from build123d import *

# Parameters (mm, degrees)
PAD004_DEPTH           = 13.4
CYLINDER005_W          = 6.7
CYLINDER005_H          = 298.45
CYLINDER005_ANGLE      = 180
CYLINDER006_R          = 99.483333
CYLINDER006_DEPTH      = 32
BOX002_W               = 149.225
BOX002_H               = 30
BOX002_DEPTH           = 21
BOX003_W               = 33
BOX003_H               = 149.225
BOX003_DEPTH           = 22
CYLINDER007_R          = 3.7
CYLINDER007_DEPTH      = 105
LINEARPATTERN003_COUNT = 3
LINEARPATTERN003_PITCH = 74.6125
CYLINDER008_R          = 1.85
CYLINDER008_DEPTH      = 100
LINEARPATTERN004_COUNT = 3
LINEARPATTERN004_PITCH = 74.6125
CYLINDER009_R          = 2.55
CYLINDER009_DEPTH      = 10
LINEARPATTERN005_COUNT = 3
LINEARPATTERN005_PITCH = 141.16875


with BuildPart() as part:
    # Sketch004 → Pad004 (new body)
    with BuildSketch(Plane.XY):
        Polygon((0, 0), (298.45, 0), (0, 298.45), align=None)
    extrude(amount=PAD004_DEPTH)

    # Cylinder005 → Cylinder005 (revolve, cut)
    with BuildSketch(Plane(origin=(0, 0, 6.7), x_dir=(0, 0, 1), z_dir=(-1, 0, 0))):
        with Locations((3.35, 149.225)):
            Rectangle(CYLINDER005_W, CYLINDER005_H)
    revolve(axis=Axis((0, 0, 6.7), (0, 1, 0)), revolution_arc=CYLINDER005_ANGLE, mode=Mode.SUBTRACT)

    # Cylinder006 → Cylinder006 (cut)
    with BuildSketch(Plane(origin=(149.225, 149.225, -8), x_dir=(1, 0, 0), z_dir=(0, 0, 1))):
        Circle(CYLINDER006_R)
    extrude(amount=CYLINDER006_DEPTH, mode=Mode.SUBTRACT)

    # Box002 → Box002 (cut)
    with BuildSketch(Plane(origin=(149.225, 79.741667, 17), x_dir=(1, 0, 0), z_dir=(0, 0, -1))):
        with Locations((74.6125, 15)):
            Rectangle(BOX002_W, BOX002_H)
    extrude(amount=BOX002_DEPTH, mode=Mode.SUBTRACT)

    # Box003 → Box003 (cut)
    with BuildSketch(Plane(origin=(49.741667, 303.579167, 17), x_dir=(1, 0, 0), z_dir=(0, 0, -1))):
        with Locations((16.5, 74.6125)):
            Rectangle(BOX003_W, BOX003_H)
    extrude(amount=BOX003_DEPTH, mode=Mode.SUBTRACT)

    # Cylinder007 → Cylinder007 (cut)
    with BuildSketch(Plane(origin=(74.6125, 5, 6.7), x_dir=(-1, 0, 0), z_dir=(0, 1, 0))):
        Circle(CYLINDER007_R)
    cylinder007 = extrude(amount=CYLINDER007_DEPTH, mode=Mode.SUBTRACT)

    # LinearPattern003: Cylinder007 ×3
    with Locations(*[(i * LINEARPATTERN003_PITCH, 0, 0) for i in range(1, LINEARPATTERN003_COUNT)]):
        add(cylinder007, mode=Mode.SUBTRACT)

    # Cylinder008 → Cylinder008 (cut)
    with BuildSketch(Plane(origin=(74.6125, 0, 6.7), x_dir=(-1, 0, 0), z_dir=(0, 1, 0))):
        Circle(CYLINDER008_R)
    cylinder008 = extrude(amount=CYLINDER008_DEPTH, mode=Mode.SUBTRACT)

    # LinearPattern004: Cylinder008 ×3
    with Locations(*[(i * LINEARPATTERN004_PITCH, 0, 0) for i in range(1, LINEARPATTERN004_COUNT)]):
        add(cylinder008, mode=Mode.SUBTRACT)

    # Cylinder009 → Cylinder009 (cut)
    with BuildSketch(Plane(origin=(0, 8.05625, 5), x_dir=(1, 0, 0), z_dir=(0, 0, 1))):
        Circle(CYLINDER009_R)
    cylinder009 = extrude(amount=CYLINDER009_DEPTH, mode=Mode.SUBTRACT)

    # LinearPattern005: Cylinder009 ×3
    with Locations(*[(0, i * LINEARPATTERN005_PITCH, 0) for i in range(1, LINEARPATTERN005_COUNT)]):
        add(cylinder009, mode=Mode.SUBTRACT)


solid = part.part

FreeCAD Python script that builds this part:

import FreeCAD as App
import Part
import Sketcher

doc = App.newDocument("Part")
body = doc.addObject("PartDesign::Body", "Body")

sketch1 = body.newObject("Sketcher::SketchObject", "Sketch")
sketch1.AttachmentSupport = (doc.getObject("XY_Plane"), [""])
sketch1.MapMode = "FlatFace"
sketch1.addGeometry(Part.LineSegment(App.Vector(0, 0, 0), App.Vector(298.45, 0, 0)), False)
sketch1.addGeometry(Part.LineSegment(App.Vector(298.45, 0, 0), App.Vector(0, 298.45, 0)), False)
sketch1.addGeometry(Part.LineSegment(App.Vector(0, 298.45, 0), App.Vector(0, 0, 0)), False)
sketch1.addConstraint(Sketcher.Constraint("Coincident", 0, 2, 1, 1))
sketch1.addConstraint(Sketcher.Constraint("Coincident", 1, 2, 2, 1))
sketch1.addConstraint(Sketcher.Constraint("Coincident", 2, 2, 0, 1))
sketch1.addConstraint(Sketcher.Constraint("Horizontal", 0))
sketch1.addConstraint(Sketcher.Constraint("Vertical", 2))
sketch1.addConstraint(Sketcher.Constraint("Coincident", 2, 2, -1, 1))
sketch1.addConstraint(Sketcher.Constraint("Equal", 0, 2))
sketch1.addConstraint(Sketcher.Constraint("DistanceX", 0, 1, 0, 2, 298.45))
pad1 = body.newObject("PartDesign::Pad", "Pad")
pad1.Profile = sketch1
pad1.Length = 13.4

sketch2 = body.newObject("Sketcher::SketchObject", "Sketch001")
sketch2.AttachmentSupport = (doc.getObject("YZ_Plane"), [""])
sketch2.MapMode = "FlatFace"
sketch2.addGeometry(Part.LineSegment(App.Vector(298.45, 6.7, 0), App.Vector(0, 6.7, 0)), False)
sketch2.addGeometry(Part.LineSegment(App.Vector(0, 6.7, 0), App.Vector(0, 13.4, 0)), False)
sketch2.addGeometry(Part.LineSegment(App.Vector(0, 13.4, 0), App.Vector(298.45, 13.4, 0)), False)
sketch2.addGeometry(Part.LineSegment(App.Vector(298.45, 13.4, 0), App.Vector(298.45, 6.7, 0)), False)
sketch2.addGeometry(Part.LineSegment(App.Vector(0, 6.7, 0), App.Vector(298.45, 6.7, 0)), True)
sketch2.addConstraint(Sketcher.Constraint("Coincident", 0, 2, 1, 1))
sketch2.addConstraint(Sketcher.Constraint("Coincident", 1, 2, 2, 1))
sketch2.addConstraint(Sketcher.Constraint("Coincident", 2, 2, 3, 1))
sketch2.addConstraint(Sketcher.Constraint("Coincident", 3, 2, 0, 1))
sketch2.addConstraint(Sketcher.Constraint("Horizontal", 0))
sketch2.addConstraint(Sketcher.Constraint("Vertical", 1))
sketch2.addConstraint(Sketcher.Constraint("Horizontal", 2))
sketch2.addConstraint(Sketcher.Constraint("Vertical", 3))
sketch2.addConstraint(Sketcher.Constraint("Horizontal", 4))
sketch2.addConstraint(Sketcher.Constraint("Coincident", 4, 1, 0, 2))
sketch2.addConstraint(Sketcher.Constraint("PointOnObject", 0, 2, -2))
sketch2.addConstraint(Sketcher.Constraint("Vertical", 2, 2, 4, 2))
sketch2.addConstraint(Sketcher.Constraint("DistanceY", 1, 1, 1, 2, 6.7))
sketch2.addConstraint(Sketcher.Constraint("DistanceX", 0, 2, 0, 1, 298.45))
sketch2.addConstraint(Sketcher.Constraint("DistanceY", -1, 1, 0, 2, 6.7))
groove = body.newObject("PartDesign::Groove", "Groove")
groove.Profile = sketch2
groove.ReferenceAxis = (sketch2, ["Axis0"])
groove.Angle = 180

sketch3 = body.newObject("Sketcher::SketchObject", "Sketch002")
sketch3.AttachmentSupport = (doc.getObject("XY_Plane"), [""])
sketch3.MapMode = "FlatFace"
sketch3.AttachmentOffset = App.Placement(App.Vector(0, 0, -8), App.Rotation())
sketch3.addGeometry(Part.Circle(App.Vector(149.225, 149.225, 0), App.Vector(0, 0, 1), 99.483333), False)
sketch3.addConstraint(Sketcher.Constraint("Diameter", 0, 198.966666))
sketch3.addConstraint(Sketcher.Constraint("DistanceX", -1, 1, 0, 3, 149.225))
sketch3.addConstraint(Sketcher.Constraint("DistanceY", -1, 1, 0, 3, 149.225))
pocket1 = body.newObject("PartDesign::Pocket", "Pocket")
pocket1.Profile = sketch3
pocket1.Length = 32
pocket1.Reversed = True

sketch4 = body.newObject("Sketcher::SketchObject", "Sketch003")
sketch4.AttachmentSupport = (doc.getObject("XY_Plane"), [""])
sketch4.MapMode = "FlatFace"
sketch4.AttachmentOffset = App.Placement(App.Vector(0, 0, 17), App.Rotation())
sketch4.addGeometry(Part.LineSegment(App.Vector(149.225, 49.741667, 0), App.Vector(149.225, 79.741667, 0)), False)
sketch4.addGeometry(Part.LineSegment(App.Vector(149.225, 79.741667, 0), App.Vector(298.45, 79.741667, 0)), False)
sketch4.addGeometry(Part.LineSegment(App.Vector(298.45, 79.741667, 0), App.Vector(298.45, 49.741667, 0)), False)
sketch4.addGeometry(Part.LineSegment(App.Vector(298.45, 49.741667, 0), App.Vector(149.225, 49.741667, 0)), False)
sketch4.addConstraint(Sketcher.Constraint("Coincident", 0, 2, 1, 1))
sketch4.addConstraint(Sketcher.Constraint("Coincident", 1, 2, 2, 1))
sketch4.addConstraint(Sketcher.Constraint("Coincident", 2, 2, 3, 1))
sketch4.addConstraint(Sketcher.Constraint("Coincident", 3, 2, 0, 1))
sketch4.addConstraint(Sketcher.Constraint("Vertical", 0))
sketch4.addConstraint(Sketcher.Constraint("Horizontal", 1))
sketch4.addConstraint(Sketcher.Constraint("Vertical", 2))
sketch4.addConstraint(Sketcher.Constraint("Horizontal", 3))
sketch4.addConstraint(Sketcher.Constraint("DistanceY", 0, 1, 0, 2, 30.0))
sketch4.addConstraint(Sketcher.Constraint("DistanceX", 1, 1, 1, 2, 149.225))
sketch4.addConstraint(Sketcher.Constraint("DistanceX", -1, 1, 1, 2, 298.45))
sketch4.addConstraint(Sketcher.Constraint("DistanceY", -1, 1, 0, 2, 79.741667))
pocket2 = body.newObject("PartDesign::Pocket", "Pocket001")
pocket2.Profile = sketch4
pocket2.Length = 21

sketch5 = body.newObject("Sketcher::SketchObject", "Sketch004")
sketch5.AttachmentSupport = (doc.getObject("XY_Plane"), [""])
sketch5.MapMode = "FlatFace"
sketch5.AttachmentOffset = App.Placement(App.Vector(0, 0, 17), App.Rotation())
sketch5.addGeometry(Part.LineSegment(App.Vector(49.741667, 154.354167, 0), App.Vector(49.741667, 303.579167, 0)), False)
sketch5.addGeometry(Part.LineSegment(App.Vector(49.741667, 303.579167, 0), App.Vector(82.741667, 303.579167, 0)), False)
sketch5.addGeometry(Part.LineSegment(App.Vector(82.741667, 303.579167, 0), App.Vector(82.741667, 154.354167, 0)), False)
sketch5.addGeometry(Part.LineSegment(App.Vector(82.741667, 154.354167, 0), App.Vector(49.741667, 154.354167, 0)), False)
sketch5.addConstraint(Sketcher.Constraint("Coincident", 0, 2, 1, 1))
sketch5.addConstraint(Sketcher.Constraint("Coincident", 1, 2, 2, 1))
sketch5.addConstraint(Sketcher.Constraint("Coincident", 2, 2, 3, 1))
sketch5.addConstraint(Sketcher.Constraint("Coincident", 3, 2, 0, 1))
sketch5.addConstraint(Sketcher.Constraint("Vertical", 0))
sketch5.addConstraint(Sketcher.Constraint("Horizontal", 1))
sketch5.addConstraint(Sketcher.Constraint("Vertical", 2))
sketch5.addConstraint(Sketcher.Constraint("Horizontal", 3))
sketch5.addConstraint(Sketcher.Constraint("DistanceX", 1, 1, 1, 2, 33.0))
sketch5.addConstraint(Sketcher.Constraint("DistanceY", 0, 1, 0, 2, 149.225))
sketch5.addConstraint(Sketcher.Constraint("DistanceX", -1, 1, 0, 2, 49.741667))
sketch5.addConstraint(Sketcher.Constraint("DistanceY", -1, 1, 0, 2, 303.579167))
pocket3 = body.newObject("PartDesign::Pocket", "Pocket002")
pocket3.Profile = sketch5
pocket3.Length = 22

sketch6 = body.newObject("Sketcher::SketchObject", "Sketch005")
sketch6.AttachmentSupport = (doc.getObject("XZ_Plane"), [""])
sketch6.MapMode = "FlatFace"
sketch6.AttachmentOffset = App.Placement(App.Vector(0, 0, -5), App.Rotation())
sketch6.addGeometry(Part.Circle(App.Vector(74.6125, 6.7, 0), App.Vector(0, 0, 1), 3.7), False)
sketch6.addConstraint(Sketcher.Constraint("Diameter", 0, 7.4))
sketch6.addConstraint(Sketcher.Constraint("DistanceY", -1, 1, 0, 3, 6.7))
sketch6.addConstraint(Sketcher.Constraint("DistanceX", -1, 1, 0, 3, 74.6125))
pocket4 = body.newObject("PartDesign::Pocket", "Pocket003")
pocket4.Profile = sketch6
pocket4.Length = 105
doc.recompute()

linearpattern = body.newObject("PartDesign::LinearPattern", "LinearPattern")
linearpattern.Originals = [pocket4]
linearpattern.Direction = (doc.getObject("X_Axis"), [""])
linearpattern.Mode = "offset"
linearpattern.Offset = 74.6125
linearpattern.Occurrences = 3
body.Tip = linearpattern

sketch7 = body.newObject("Sketcher::SketchObject", "Sketch006")
sketch7.AttachmentSupport = (doc.getObject("XZ_Plane"), [""])
sketch7.MapMode = "FlatFace"
sketch7.addGeometry(Part.Circle(App.Vector(74.6125, 6.7, 0), App.Vector(0, 0, 1), 1.85), False)
sketch7.addConstraint(Sketcher.Constraint("Diameter", 0, 3.7))
sketch7.addConstraint(Sketcher.Constraint("DistanceY", -1, 1, 0, 3, 6.7))
sketch7.addConstraint(Sketcher.Constraint("DistanceX", -1, 1, 0, 3, 74.6125))
pocket5 = body.newObject("PartDesign::Pocket", "Pocket004")
pocket5.Profile = sketch7
pocket5.Length = 100
doc.recompute()

linearpattern2 = body.newObject("PartDesign::LinearPattern", "LinearPattern001")
linearpattern2.Originals = [pocket5]
linearpattern2.Direction = (doc.getObject("X_Axis"), [""])
linearpattern2.Mode = "offset"
linearpattern2.Offset = 74.6125
linearpattern2.Occurrences = 3
body.Tip = linearpattern2

sketch8 = body.newObject("Sketcher::SketchObject", "Sketch007")
sketch8.AttachmentSupport = (doc.getObject("XY_Plane"), [""])
sketch8.MapMode = "FlatFace"
sketch8.AttachmentOffset = App.Placement(App.Vector(0, 0, 5), App.Rotation())
sketch8.addGeometry(Part.Circle(App.Vector(0, 8.05625, 0), App.Vector(0, 0, 1), 2.55), False)
sketch8.addConstraint(Sketcher.Constraint("PointOnObject", 0, 3, -2))
sketch8.addConstraint(Sketcher.Constraint("Diameter", 0, 5.1))
sketch8.addConstraint(Sketcher.Constraint("DistanceY", -1, 1, 0, 3, 8.05625))
pocket6 = body.newObject("PartDesign::Pocket", "Pocket005")
pocket6.Profile = sketch8
pocket6.Length = 10
pocket6.Reversed = True
doc.recompute()

linearpattern3 = body.newObject("PartDesign::LinearPattern", "LinearPattern002")
linearpattern3.Originals = [pocket6]
linearpattern3.Direction = (doc.getObject("Y_Axis"), [""])
linearpattern3.Mode = "offset"
linearpattern3.Offset = 141.16875
linearpattern3.Occurrences = 3
body.Tip = linearpattern3

doc.recompute()
